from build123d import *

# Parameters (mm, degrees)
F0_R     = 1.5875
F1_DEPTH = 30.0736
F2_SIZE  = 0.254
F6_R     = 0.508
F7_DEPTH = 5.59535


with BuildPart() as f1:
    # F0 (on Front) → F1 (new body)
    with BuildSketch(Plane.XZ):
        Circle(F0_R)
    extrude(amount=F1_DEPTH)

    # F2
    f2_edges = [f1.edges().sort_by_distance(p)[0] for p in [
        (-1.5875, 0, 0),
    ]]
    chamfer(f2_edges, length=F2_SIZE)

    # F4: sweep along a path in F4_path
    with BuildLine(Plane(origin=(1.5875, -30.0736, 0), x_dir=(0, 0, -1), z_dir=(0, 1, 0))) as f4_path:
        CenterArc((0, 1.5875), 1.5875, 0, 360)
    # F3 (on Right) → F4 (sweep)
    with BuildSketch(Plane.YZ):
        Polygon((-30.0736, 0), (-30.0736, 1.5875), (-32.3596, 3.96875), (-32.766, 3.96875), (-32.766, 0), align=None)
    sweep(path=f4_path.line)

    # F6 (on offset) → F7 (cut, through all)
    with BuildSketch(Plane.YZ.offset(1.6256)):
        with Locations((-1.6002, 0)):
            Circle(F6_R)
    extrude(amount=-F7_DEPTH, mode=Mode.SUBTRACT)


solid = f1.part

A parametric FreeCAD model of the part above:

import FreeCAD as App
import Part
import Sketcher

V = App.Vector
Q = App.Units.Quantity


def edges_at(feature, points):
    """Names of the edges that pass closest to the given points."""
    edges = feature.Shape.Edges
    near = lambda p: min(range(len(edges)), key=lambda i: edges[i].distToShape(Part.Vertex(*p))[0])
    return sorted({f"Edge{near(p) + 1}" for p in points})


def add_polygon(sketch, points):
    """Adds a closed chain of lines whose ends are joined by coincident constraints."""
    first, n = sketch.GeometryCount, len(points)
    for a, b in zip(points, points[1:] + points[:1]):
        sketch.addGeometry(Part.LineSegment(App.Vector(*a, 0), App.Vector(*b, 0)), False)
    for i in range(n):
        sketch.addConstraint(Sketcher.Constraint("Coincident", first + i, 2, first + (i + 1) % n, 1))

doc = App.newDocument("Part")
body = doc.addObject("PartDesign::Body", "Body")

# Sketch on XZ plane
sketch1 = body.newObject("Sketcher::SketchObject", "Sketch")
sketch1.AttachmentSupport = (doc.getObject("XZ_Plane"), [""])
sketch1.MapMode = "FlatFace"
sketch1.addGeometry(Part.Circle(V(0, 0, 0), V(0, 0, 1), 1.6), False)
sketch1.addConstraint([
    Sketcher.Constraint("Coincident", 0, 3, -1, 1),
    Sketcher.Constraint("Diameter", 0, Q("0.125 in")),
])
pad1 = body.newObject("PartDesign::Pad", "Pad")
pad1.Profile = sketch1
pad1.Length = Q("1.184 in")
doc.recompute()

chamfer = body.newObject("PartDesign::Chamfer", "Chamfer")
chamfer.Base = (pad1, edges_at(pad1, [(-1.587, 0, 0)]))
chamfer.Size = Q("0.01 in")

# Sketch on YZ plane
sketch2 = body.newObject("Sketcher::SketchObject", "Sketch001")
sketch2.AttachmentSupport = (doc.getObject("YZ_Plane"), [""])
sketch2.MapMode = "FlatFace"
add_polygon(sketch2, [(-30.07, 0), (-30.07, 1.59), (-32.36, 3.97), (-32.77, 3.97), (-32.77, 0)])  # lines 0-4
sketch2.addConstraint([
    Sketcher.Constraint("Vertical", 0),
    Sketcher.Constraint("Horizontal", 2),
    Sketcher.Constraint("Vertical", 3),
    Sketcher.Constraint("Horizontal", 4),
    Sketcher.Constraint("PointOnObject", 3, 2, -1),
    Sketcher.Constraint("DistanceX", 2, 2, 2, 1, Q("0.016 in")),
    Sketcher.Constraint("DistanceX", 4, 1, 4, 2, Q("0.106 in")),
    Sketcher.Constraint("DistanceY", 0, 1, 0, 2, Q("0.0625 in")),
    Sketcher.Constraint("DistanceY", 3, 2, 3, 1, Q("0.15625 in")),
    Sketcher.Constraint("DistanceX", 2, 2, -1, 1, Q("1.29 in")),
])

# Sketch on XZ plane
sketch3 = body.newObject("Sketcher::SketchObject", "Sketch002")
sketch3.AttachmentSupport = (doc.getObject("XZ_Plane"), [""])
sketch3.MapMode = "FlatFace"
sketch3.AttachmentOffset = App.Placement(V(0, 0, 1.184 * 25.4), App.Rotation())
sketch3.addGeometry(Part.Circle(V(0, 0, 0), V(0, 0, 1), 1.6), False)
sketch3.addConstraint([
    Sketcher.Constraint("Coincident", 0, 3, -1, 1),
    Sketcher.Constraint("Diameter", 0, Q("0.125 in")),
])
doc.recompute()

additivepipe = body.newObject("PartDesign::AdditivePipe", "AdditivePipe")
additivepipe.Profile = sketch2
additivepipe.Spine = (sketch3, ["Edge1"])

# Sketch on YZ plane
sketch4 = body.newObject("Sketcher::SketchObject", "Sketch003")
sketch4.AttachmentSupport = (doc.getObject("YZ_Plane"), [""])
sketch4.MapMode = "FlatFace"
sketch4.AttachmentOffset = App.Placement(V(0, 0, 0.064 * 25.4), App.Rotation())
sketch4.addGeometry(Part.Circle(V(-1.6, 0, 0), V(0, 0, 1), 0.5), False)
sketch4.addConstraint([
    Sketcher.Constraint("PointOnObject", 0, 3, -1),
    Sketcher.Constraint("Diameter", 0, Q("0.04 in")),
    Sketcher.Constraint("DistanceX", 0, 3, -1, 1, Q("0.063 in")),
])
pocket1 = body.newObject("PartDesign::Pocket", "Pocket")
pocket1.Profile = sketch4
pocket1.Type = "ThroughAll"

doc.recompute()
